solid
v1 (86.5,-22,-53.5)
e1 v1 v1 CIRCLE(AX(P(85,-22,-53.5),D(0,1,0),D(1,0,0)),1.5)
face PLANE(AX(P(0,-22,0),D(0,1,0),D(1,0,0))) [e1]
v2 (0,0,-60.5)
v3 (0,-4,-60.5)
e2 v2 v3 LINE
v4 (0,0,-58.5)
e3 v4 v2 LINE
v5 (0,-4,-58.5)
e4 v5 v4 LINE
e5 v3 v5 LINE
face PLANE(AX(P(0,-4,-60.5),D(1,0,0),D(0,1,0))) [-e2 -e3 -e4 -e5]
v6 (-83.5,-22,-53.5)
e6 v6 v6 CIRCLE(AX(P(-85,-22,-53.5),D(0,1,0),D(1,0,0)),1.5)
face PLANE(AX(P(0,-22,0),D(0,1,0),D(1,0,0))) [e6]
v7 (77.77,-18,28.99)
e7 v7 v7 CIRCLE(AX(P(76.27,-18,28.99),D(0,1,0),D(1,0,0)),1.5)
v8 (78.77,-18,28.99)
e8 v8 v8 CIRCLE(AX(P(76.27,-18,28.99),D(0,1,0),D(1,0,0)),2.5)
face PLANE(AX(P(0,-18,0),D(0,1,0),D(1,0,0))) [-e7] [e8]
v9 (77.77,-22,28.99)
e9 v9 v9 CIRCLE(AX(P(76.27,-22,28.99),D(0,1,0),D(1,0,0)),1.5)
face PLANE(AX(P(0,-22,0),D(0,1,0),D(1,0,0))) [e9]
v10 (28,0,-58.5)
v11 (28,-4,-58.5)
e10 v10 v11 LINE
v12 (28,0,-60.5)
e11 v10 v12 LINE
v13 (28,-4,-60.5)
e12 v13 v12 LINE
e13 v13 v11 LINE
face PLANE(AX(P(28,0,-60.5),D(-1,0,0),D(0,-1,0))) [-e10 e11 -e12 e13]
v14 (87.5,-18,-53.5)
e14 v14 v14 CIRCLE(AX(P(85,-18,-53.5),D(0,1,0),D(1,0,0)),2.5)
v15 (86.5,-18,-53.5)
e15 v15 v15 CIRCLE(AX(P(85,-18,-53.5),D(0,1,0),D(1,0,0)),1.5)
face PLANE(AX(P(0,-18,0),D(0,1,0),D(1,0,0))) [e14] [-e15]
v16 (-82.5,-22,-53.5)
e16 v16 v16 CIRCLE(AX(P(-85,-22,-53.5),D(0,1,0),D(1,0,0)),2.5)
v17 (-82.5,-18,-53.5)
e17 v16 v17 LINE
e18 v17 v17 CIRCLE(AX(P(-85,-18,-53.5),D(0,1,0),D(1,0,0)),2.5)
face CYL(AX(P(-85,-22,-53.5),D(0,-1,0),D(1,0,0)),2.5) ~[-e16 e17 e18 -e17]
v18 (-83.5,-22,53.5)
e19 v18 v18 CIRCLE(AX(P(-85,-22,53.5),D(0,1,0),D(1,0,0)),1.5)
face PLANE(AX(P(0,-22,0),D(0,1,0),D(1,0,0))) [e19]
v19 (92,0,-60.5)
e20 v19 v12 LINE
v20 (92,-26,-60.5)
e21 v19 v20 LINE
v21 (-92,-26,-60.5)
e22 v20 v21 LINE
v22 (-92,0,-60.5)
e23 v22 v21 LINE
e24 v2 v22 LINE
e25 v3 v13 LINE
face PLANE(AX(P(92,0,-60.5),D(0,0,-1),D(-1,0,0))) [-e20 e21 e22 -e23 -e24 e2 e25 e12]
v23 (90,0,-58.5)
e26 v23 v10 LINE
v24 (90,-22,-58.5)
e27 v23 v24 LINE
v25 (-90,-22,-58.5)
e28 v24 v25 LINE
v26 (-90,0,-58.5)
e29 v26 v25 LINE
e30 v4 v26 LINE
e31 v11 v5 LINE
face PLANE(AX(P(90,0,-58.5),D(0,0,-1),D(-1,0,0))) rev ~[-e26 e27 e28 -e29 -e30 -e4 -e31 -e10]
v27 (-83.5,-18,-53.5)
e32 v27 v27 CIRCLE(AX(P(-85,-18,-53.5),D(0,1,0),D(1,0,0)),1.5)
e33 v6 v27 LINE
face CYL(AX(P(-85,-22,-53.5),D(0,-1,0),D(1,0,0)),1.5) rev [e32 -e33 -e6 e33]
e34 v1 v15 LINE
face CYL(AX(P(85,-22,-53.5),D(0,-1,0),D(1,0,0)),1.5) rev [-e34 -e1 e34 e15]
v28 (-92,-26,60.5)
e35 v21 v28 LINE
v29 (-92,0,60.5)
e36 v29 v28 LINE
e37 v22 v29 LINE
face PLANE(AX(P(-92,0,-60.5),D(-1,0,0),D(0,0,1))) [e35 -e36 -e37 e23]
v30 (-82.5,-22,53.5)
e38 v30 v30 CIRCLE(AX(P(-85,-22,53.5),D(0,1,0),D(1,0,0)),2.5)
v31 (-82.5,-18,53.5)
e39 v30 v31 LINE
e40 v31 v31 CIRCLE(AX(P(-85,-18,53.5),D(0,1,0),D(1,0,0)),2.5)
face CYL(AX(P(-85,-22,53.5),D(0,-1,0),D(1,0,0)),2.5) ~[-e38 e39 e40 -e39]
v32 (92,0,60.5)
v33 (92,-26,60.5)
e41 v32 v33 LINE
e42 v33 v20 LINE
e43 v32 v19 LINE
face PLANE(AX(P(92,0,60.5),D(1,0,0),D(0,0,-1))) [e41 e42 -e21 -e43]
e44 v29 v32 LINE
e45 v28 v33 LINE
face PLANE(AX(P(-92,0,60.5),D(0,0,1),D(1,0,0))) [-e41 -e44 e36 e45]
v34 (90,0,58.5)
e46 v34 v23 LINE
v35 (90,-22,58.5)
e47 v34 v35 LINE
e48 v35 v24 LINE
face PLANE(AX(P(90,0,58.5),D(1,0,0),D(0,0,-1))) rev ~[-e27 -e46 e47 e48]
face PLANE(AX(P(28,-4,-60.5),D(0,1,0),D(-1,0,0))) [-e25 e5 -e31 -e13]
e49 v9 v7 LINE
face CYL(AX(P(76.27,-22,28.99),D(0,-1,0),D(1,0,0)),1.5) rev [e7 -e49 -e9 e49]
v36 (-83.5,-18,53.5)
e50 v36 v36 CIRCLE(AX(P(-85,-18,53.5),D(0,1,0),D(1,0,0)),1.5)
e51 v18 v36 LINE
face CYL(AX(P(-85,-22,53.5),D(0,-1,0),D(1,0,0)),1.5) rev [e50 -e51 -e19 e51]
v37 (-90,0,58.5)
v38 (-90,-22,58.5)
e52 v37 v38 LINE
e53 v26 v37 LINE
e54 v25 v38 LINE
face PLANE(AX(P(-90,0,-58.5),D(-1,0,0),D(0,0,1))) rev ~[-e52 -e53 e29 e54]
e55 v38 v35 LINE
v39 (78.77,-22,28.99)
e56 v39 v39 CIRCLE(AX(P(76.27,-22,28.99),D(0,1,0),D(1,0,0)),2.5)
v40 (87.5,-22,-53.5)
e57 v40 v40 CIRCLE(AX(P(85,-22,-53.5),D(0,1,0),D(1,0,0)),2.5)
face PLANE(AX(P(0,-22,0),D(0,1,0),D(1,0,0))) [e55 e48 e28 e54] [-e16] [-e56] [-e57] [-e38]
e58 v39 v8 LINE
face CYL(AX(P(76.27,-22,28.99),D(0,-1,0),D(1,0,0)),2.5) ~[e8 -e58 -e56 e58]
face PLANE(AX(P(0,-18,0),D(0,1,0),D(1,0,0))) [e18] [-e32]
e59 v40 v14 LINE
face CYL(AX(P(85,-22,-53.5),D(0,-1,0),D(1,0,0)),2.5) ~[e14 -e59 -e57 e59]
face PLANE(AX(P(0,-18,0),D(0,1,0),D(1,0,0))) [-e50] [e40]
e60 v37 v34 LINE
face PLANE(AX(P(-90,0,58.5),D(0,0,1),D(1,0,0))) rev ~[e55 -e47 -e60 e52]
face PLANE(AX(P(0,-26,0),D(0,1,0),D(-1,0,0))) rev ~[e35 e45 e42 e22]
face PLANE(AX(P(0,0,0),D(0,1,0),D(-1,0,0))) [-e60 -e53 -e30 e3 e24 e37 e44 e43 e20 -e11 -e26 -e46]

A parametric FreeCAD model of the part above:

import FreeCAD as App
import Part
import Sketcher

V = App.Vector


def add_polygon(sketch, points):
    """Adds a closed chain of lines whose ends are joined by coincident constraints."""
    first, n = sketch.GeometryCount, len(points)
    for a, b in zip(points, points[1:] + points[:1]):
        sketch.addGeometry(Part.LineSegment(App.Vector(*a, 0), App.Vector(*b, 0)), False)
    for i in range(n):
        sketch.addConstraint(Sketcher.Constraint("Coincident", first + i, 2, first + (i + 1) % n, 1))

doc = App.newDocument("Part")
body = doc.addObject("PartDesign::Body", "Body")

sketch1 = body.newObject("Sketcher::SketchObject", "Sketch")
sketch1.AttachmentSupport = (doc.getObject("XZ_Plane"), [""])
sketch1.MapMode = "FlatFace"
add_polygon(sketch1, [(-92, -60), (-92, 60), (92, 60), (92, -60)])
sketch1.addConstraint(Sketcher.Constraint("Vertical", 0))
sketch1.addConstraint(Sketcher.Constraint("Horizontal", 1))
sketch1.addConstraint(Sketcher.Constraint("Vertical", 2))
sketch1.addConstraint(Sketcher.Constraint("Horizontal", 3))
sketch1.addConstraint(Sketcher.Constraint("Symmetric", 0, 2, 2, 2, -1, 1))
sketch1.addConstraint(Sketcher.Constraint("DistanceX", 1, 1, 1, 2, 184.0))
sketch1.addConstraint(Sketcher.Constraint("DistanceY", 0, 1, 0, 2, 121.0))
pad1 = body.newObject("PartDesign::Pad", "Pad")
pad1.Profile = sketch1
pad1.Length = 26

sketch2 = body.newObject("Sketcher::SketchObject", "Sketch001")
sketch2.AttachmentSupport = (doc.getObject("XZ_Plane"), [""])
sketch2.MapMode = "FlatFace"
add_polygon(sketch2, [(-90, -58), (-90, 58), (90, 58), (90, -58)])
sketch2.addConstraint(Sketcher.Constraint("Vertical", 0))
sketch2.addConstraint(Sketcher.Constraint("Horizontal", 1))
sketch2.addConstraint(Sketcher.Constraint("Vertical", 2))
sketch2.addConstraint(Sketcher.Constraint("Horizontal", 3))
sketch2.addConstraint(Sketcher.Constraint("Symmetric", 0, 2, 2, 2, -1, 1))
sketch2.addConstraint(Sketcher.Constraint("DistanceX", 1, 1, 1, 2, 180.0))
sketch2.addConstraint(Sketcher.Constraint("DistanceY", 0, 1, 0, 2, 117.0))
pocket1 = body.newObject("PartDesign::Pocket", "Pocket")
pocket1.Profile = sketch2
pocket1.Length = 22
pocket1.Reversed = True

sketch3 = body.newObject("Sketcher::SketchObject", "Sketch002")
sketch3.AttachmentSupport = (doc.getObject("XZ_Plane"), [""])
sketch3.MapMode = "FlatFace"
sketch3.AttachmentOffset = App.Placement(V(0, 0, 22), App.Rotation())
sketch3.addGeometry(Part.Circle(V(-85, 53.5, 0), V(0, 0, 1), 2.5), False)
sketch3.addGeometry(Part.Circle(V(-85, 53.5, 0), V(0, 0, 1), 1.5), False)
sketch3.addGeometry(Part.Circle(V(-85, -53.5, 0), V(0, 0, 1), 2.5), False)
sketch3.addGeometry(Part.Circle(V(-85, -53.5, 0), V(0, 0, 1), 1.5), False)
sketch3.addGeometry(Part.Circle(V(85, -53.5, 0), V(0, 0, 1), 2.5), False)
sketch3.addGeometry(Part.Circle(V(85, -53.5, 0), V(0, 0, 1), 1.5), False)
sketch3.addGeometry(Part.Circle(V(76.3, 29, 0), V(0, 0, 1), 2.5), False)
sketch3.addGeometry(Part.Circle(V(76.3, 29, 0), V(0, 0, 1), 1.5), False)
sketch3.addConstraint(Sketcher.Constraint("Coincident", 1, 3, 0, 3))
sketch3.addConstraint(Sketcher.Constraint("Coincident", 3, 3, 2, 3))
sketch3.addConstraint(Sketcher.Constraint("Coincident", 5, 3, 4, 3))
sketch3.addConstraint(Sketcher.Constraint("Coincident", 7, 3, 6, 3))
sketch3.addConstraint(Sketcher.Constraint("Equal", 0, 2))
sketch3.addConstraint(Sketcher.Constraint("Equal", 1, 3))
sketch3.addConstraint(Sketcher.Constraint("Equal", 2, 4))
sketch3.addConstraint(Sketcher.Constraint("Equal", 3, 5))
sketch3.addConstraint(Sketcher.Constraint("Equal", 4, 6))
sketch3.addConstraint(Sketcher.Constraint("Equal", 5, 7))
sketch3.addConstraint(Sketcher.Constraint("Symmetric", 0, 3, 4, 3, -1, 1))
sketch3.addConstraint(Sketcher.Constraint("Symmetric", 2, 3, 4, 3, -2))
sketch3.addConstraint(Sketcher.Constraint("Diameter", 0, 5.0))
sketch3.addConstraint(Sketcher.Constraint("Diameter", 1, 3.0))
sketch3.addConstraint(Sketcher.Constraint("DistanceX", 0, 3, -1, 1, 85.0))
sketch3.addConstraint(Sketcher.Constraint("DistanceY", 2, 3, 0, 3, 107.0))
sketch3.addConstraint(Sketcher.Constraint("DistanceX", -1, 1, 6, 3, 76.27))
sketch3.addConstraint(Sketcher.Constraint("DistanceY", -1, 1, 6, 3, 28.99))
pad2 = body.newObject("PartDesign::Pad", "Pad001")
pad2.Profile = sketch3
pad2.Length = 4
pad2.Reversed = True

sketch4 = body.newObject("Sketcher::SketchObject", "Sketch003")
sketch4.AttachmentSupport = (doc.getObject("XY_Plane"), [""])
sketch4.MapMode = "FlatFace"
sketch4.AttachmentOffset = App.Placement(V(0, 0, -60.5), App.Rotation())
add_polygon(sketch4, [(0, -4), (0, 0), (28, 0), (28, -4)])
sketch4.addConstraint(Sketcher.Constraint("Vertical", 0))
sketch4.addConstraint(Sketcher.Constraint("Horizontal", 1))
sketch4.addConstraint(Sketcher.Constraint("Vertical", 2))
sketch4.addConstraint(Sketcher.Constraint("Horizontal", 3))
sketch4.addConstraint(Sketcher.Constraint("Coincident", 0, 2, -1, 1))
sketch4.addConstraint(Sketcher.Constraint("DistanceX", 1, 1, 1, 2, 28.0))
sketch4.addConstraint(Sketcher.Constraint("DistanceY", 0, 1, 0, 2, 4.0))
pocket2 = body.newObject("PartDesign::Pocket", "Pocket001")
pocket2.Profile = sketch4
pocket2.Type = "TwoLengths"
pocket2.Length = 4
pocket2.Length2 = 2

doc.recompute()
